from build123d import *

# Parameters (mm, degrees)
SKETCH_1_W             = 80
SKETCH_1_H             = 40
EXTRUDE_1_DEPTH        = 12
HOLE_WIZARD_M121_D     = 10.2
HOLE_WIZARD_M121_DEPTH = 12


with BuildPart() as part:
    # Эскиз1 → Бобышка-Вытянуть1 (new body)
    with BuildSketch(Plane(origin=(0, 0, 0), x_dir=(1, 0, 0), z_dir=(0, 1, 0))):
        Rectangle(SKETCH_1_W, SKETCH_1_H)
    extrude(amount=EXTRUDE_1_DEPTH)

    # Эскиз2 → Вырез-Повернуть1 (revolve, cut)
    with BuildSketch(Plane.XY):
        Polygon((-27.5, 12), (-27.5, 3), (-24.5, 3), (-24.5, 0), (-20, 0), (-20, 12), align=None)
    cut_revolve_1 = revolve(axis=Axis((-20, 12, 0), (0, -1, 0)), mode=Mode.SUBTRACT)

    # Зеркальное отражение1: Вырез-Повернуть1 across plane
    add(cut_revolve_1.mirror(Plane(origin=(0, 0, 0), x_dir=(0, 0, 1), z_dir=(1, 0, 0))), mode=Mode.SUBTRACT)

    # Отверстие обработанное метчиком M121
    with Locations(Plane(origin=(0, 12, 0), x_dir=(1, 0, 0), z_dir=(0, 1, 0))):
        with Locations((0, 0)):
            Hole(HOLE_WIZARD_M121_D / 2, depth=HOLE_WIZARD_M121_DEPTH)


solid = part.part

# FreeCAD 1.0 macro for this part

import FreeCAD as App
import Part
import Sketcher
Q = App.Units.Quantity


def add_polygon(sketch, points):
    """Adds a closed chain of lines whose ends are joined by coincident constraints."""
    first, n = sketch.GeometryCount, len(points)
    for a, b in zip(points, points[1:] + points[:1]):
        sketch.addGeometry(Part.LineSegment(App.Vector(*a, 0), App.Vector(*b, 0)), False)
    for i in range(n):
        sketch.addConstraint(Sketcher.Constraint("Coincident", first + i, 2, first + (i + 1) % n, 1))

doc = App.newDocument("Part")
body = doc.addObject("PartDesign::Body", "Body")

sketch1 = body.newObject("Sketcher::SketchObject", "Sketch")
sketch1.AttachmentSupport = (doc.getObject("XZ_Plane"), [""])
sketch1.MapMode = "FlatFace"
add_polygon(sketch1, [(-40, -20), (-40, 20), (40, 20), (40, -20)])
sketch1.addConstraint(Sketcher.Constraint("Vertical", 0))
sketch1.addConstraint(Sketcher.Constraint("Horizontal", 1))
sketch1.addConstraint(Sketcher.Constraint("Vertical", 2))
sketch1.addConstraint(Sketcher.Constraint("Horizontal", 3))
sketch1.addConstraint(Sketcher.Constraint("Symmetric", 0, 2, 2, 2, -1, 1))
sketch1.addConstraint(Sketcher.Constraint("DistanceX", 1, 1, 1, 2, Q("80 mm")))
sketch1.addConstraint(Sketcher.Constraint("DistanceY", 0, 1, 0, 2, Q("40 mm")))
pad1 = body.newObject("PartDesign::Pad", "Pad")
pad1.Profile = sketch1
pad1.Length = 12
pad1.Reversed = True

sketch2 = body.newObject("Sketcher::SketchObject", "Sketch001")
sketch2.AttachmentSupport = (doc.getObject("XY_Plane"), [""])
sketch2.MapMode = "FlatFace"
add_polygon(sketch2, [(-27.5, 12), (-27.5, 3), (-24.5, 3), (-24.5, 0), (-20, 0), (-20, 12)])
sketch2.addGeometry(Part.LineSegment(App.Vector(-20, 12, 0), App.Vector(-20, 0, 0)), True)
sketch2.addConstraint(Sketcher.Constraint("Vertical", 0))
sketch2.addConstraint(Sketcher.Constraint("Horizontal", 1))
sketch2.addConstraint(Sketcher.Constraint("Vertical", 2))
sketch2.addConstraint(Sketcher.Constraint("Horizontal", 3))
sketch2.addConstraint(Sketcher.Constraint("Vertical", 4))
sketch2.addConstraint(Sketcher.Constraint("Horizontal", 5))
sketch2.addConstraint(Sketcher.Constraint("Vertical", 6))
sketch2.addConstraint(Sketcher.Constraint("Coincident", 6, 1, 4, 2))
sketch2.addConstraint(Sketcher.Constraint("PointOnObject", 2, 2, -1))
sketch2.addConstraint(Sketcher.Constraint("PointOnObject", 6, 2, -1))
sketch2.addConstraint(Sketcher.Constraint("Equal", 1, 2))
sketch2.addConstraint(Sketcher.Constraint("DistanceX", 1, 1, 1, 2, Q("3 mm")))
sketch2.addConstraint(Sketcher.Constraint("DistanceY", 0, 2, 0, 1, Q("9 mm")))
sketch2.addConstraint(Sketcher.Constraint("DistanceX", 3, 1, 3, 2, Q("4.5 mm")))
sketch2.addConstraint(Sketcher.Constraint("DistanceX", 3, 2, -1, 1, Q("20 mm")))
groove = body.newObject("PartDesign::Groove", "Groove")
groove.Profile = sketch2
groove.ReferenceAxis = (sketch2, ["Axis0"])
groove.Angle = 360
doc.recompute()

mirrored = body.newObject("PartDesign::Mirrored", "Mirrored")
mirrored.Originals = [groove]
mirrored.MirrorPlane = (doc.getObject("YZ_Plane"), [""])
body.Tip = mirrored

sketch3 = body.newObject("Sketcher::SketchObject", "Sketch002")
sketch3.AttachmentSupport = (doc.getObject("XZ_Plane"), [""])
sketch3.MapMode = "FlatFace"
sketch3.AttachmentOffset = App.Placement(App.Vector(0, 0, -12), App.Rotation())
sketch3.addGeometry(Part.Circle(App.Vector(0, 0, 0), App.Vector(0, 0, 1), 5), False)
sketch3.addConstraint(Sketcher.Constraint("Coincident", 0, 3, -1, 1))
sketch3.addConstraint(Sketcher.Constraint("Diameter", 0, Q("10.2 mm")))
doc.recompute()
hole = body.newObject("PartDesign::Hole", "Hole")
hole.Profile = sketch3
hole.ThreadType = "None"
hole.Diameter = 10.2
hole.DepthType = "Dimension"
hole.Depth = 12
hole.DrillPoint = "Flat"
hole.Reversed = True

doc.recompute()
